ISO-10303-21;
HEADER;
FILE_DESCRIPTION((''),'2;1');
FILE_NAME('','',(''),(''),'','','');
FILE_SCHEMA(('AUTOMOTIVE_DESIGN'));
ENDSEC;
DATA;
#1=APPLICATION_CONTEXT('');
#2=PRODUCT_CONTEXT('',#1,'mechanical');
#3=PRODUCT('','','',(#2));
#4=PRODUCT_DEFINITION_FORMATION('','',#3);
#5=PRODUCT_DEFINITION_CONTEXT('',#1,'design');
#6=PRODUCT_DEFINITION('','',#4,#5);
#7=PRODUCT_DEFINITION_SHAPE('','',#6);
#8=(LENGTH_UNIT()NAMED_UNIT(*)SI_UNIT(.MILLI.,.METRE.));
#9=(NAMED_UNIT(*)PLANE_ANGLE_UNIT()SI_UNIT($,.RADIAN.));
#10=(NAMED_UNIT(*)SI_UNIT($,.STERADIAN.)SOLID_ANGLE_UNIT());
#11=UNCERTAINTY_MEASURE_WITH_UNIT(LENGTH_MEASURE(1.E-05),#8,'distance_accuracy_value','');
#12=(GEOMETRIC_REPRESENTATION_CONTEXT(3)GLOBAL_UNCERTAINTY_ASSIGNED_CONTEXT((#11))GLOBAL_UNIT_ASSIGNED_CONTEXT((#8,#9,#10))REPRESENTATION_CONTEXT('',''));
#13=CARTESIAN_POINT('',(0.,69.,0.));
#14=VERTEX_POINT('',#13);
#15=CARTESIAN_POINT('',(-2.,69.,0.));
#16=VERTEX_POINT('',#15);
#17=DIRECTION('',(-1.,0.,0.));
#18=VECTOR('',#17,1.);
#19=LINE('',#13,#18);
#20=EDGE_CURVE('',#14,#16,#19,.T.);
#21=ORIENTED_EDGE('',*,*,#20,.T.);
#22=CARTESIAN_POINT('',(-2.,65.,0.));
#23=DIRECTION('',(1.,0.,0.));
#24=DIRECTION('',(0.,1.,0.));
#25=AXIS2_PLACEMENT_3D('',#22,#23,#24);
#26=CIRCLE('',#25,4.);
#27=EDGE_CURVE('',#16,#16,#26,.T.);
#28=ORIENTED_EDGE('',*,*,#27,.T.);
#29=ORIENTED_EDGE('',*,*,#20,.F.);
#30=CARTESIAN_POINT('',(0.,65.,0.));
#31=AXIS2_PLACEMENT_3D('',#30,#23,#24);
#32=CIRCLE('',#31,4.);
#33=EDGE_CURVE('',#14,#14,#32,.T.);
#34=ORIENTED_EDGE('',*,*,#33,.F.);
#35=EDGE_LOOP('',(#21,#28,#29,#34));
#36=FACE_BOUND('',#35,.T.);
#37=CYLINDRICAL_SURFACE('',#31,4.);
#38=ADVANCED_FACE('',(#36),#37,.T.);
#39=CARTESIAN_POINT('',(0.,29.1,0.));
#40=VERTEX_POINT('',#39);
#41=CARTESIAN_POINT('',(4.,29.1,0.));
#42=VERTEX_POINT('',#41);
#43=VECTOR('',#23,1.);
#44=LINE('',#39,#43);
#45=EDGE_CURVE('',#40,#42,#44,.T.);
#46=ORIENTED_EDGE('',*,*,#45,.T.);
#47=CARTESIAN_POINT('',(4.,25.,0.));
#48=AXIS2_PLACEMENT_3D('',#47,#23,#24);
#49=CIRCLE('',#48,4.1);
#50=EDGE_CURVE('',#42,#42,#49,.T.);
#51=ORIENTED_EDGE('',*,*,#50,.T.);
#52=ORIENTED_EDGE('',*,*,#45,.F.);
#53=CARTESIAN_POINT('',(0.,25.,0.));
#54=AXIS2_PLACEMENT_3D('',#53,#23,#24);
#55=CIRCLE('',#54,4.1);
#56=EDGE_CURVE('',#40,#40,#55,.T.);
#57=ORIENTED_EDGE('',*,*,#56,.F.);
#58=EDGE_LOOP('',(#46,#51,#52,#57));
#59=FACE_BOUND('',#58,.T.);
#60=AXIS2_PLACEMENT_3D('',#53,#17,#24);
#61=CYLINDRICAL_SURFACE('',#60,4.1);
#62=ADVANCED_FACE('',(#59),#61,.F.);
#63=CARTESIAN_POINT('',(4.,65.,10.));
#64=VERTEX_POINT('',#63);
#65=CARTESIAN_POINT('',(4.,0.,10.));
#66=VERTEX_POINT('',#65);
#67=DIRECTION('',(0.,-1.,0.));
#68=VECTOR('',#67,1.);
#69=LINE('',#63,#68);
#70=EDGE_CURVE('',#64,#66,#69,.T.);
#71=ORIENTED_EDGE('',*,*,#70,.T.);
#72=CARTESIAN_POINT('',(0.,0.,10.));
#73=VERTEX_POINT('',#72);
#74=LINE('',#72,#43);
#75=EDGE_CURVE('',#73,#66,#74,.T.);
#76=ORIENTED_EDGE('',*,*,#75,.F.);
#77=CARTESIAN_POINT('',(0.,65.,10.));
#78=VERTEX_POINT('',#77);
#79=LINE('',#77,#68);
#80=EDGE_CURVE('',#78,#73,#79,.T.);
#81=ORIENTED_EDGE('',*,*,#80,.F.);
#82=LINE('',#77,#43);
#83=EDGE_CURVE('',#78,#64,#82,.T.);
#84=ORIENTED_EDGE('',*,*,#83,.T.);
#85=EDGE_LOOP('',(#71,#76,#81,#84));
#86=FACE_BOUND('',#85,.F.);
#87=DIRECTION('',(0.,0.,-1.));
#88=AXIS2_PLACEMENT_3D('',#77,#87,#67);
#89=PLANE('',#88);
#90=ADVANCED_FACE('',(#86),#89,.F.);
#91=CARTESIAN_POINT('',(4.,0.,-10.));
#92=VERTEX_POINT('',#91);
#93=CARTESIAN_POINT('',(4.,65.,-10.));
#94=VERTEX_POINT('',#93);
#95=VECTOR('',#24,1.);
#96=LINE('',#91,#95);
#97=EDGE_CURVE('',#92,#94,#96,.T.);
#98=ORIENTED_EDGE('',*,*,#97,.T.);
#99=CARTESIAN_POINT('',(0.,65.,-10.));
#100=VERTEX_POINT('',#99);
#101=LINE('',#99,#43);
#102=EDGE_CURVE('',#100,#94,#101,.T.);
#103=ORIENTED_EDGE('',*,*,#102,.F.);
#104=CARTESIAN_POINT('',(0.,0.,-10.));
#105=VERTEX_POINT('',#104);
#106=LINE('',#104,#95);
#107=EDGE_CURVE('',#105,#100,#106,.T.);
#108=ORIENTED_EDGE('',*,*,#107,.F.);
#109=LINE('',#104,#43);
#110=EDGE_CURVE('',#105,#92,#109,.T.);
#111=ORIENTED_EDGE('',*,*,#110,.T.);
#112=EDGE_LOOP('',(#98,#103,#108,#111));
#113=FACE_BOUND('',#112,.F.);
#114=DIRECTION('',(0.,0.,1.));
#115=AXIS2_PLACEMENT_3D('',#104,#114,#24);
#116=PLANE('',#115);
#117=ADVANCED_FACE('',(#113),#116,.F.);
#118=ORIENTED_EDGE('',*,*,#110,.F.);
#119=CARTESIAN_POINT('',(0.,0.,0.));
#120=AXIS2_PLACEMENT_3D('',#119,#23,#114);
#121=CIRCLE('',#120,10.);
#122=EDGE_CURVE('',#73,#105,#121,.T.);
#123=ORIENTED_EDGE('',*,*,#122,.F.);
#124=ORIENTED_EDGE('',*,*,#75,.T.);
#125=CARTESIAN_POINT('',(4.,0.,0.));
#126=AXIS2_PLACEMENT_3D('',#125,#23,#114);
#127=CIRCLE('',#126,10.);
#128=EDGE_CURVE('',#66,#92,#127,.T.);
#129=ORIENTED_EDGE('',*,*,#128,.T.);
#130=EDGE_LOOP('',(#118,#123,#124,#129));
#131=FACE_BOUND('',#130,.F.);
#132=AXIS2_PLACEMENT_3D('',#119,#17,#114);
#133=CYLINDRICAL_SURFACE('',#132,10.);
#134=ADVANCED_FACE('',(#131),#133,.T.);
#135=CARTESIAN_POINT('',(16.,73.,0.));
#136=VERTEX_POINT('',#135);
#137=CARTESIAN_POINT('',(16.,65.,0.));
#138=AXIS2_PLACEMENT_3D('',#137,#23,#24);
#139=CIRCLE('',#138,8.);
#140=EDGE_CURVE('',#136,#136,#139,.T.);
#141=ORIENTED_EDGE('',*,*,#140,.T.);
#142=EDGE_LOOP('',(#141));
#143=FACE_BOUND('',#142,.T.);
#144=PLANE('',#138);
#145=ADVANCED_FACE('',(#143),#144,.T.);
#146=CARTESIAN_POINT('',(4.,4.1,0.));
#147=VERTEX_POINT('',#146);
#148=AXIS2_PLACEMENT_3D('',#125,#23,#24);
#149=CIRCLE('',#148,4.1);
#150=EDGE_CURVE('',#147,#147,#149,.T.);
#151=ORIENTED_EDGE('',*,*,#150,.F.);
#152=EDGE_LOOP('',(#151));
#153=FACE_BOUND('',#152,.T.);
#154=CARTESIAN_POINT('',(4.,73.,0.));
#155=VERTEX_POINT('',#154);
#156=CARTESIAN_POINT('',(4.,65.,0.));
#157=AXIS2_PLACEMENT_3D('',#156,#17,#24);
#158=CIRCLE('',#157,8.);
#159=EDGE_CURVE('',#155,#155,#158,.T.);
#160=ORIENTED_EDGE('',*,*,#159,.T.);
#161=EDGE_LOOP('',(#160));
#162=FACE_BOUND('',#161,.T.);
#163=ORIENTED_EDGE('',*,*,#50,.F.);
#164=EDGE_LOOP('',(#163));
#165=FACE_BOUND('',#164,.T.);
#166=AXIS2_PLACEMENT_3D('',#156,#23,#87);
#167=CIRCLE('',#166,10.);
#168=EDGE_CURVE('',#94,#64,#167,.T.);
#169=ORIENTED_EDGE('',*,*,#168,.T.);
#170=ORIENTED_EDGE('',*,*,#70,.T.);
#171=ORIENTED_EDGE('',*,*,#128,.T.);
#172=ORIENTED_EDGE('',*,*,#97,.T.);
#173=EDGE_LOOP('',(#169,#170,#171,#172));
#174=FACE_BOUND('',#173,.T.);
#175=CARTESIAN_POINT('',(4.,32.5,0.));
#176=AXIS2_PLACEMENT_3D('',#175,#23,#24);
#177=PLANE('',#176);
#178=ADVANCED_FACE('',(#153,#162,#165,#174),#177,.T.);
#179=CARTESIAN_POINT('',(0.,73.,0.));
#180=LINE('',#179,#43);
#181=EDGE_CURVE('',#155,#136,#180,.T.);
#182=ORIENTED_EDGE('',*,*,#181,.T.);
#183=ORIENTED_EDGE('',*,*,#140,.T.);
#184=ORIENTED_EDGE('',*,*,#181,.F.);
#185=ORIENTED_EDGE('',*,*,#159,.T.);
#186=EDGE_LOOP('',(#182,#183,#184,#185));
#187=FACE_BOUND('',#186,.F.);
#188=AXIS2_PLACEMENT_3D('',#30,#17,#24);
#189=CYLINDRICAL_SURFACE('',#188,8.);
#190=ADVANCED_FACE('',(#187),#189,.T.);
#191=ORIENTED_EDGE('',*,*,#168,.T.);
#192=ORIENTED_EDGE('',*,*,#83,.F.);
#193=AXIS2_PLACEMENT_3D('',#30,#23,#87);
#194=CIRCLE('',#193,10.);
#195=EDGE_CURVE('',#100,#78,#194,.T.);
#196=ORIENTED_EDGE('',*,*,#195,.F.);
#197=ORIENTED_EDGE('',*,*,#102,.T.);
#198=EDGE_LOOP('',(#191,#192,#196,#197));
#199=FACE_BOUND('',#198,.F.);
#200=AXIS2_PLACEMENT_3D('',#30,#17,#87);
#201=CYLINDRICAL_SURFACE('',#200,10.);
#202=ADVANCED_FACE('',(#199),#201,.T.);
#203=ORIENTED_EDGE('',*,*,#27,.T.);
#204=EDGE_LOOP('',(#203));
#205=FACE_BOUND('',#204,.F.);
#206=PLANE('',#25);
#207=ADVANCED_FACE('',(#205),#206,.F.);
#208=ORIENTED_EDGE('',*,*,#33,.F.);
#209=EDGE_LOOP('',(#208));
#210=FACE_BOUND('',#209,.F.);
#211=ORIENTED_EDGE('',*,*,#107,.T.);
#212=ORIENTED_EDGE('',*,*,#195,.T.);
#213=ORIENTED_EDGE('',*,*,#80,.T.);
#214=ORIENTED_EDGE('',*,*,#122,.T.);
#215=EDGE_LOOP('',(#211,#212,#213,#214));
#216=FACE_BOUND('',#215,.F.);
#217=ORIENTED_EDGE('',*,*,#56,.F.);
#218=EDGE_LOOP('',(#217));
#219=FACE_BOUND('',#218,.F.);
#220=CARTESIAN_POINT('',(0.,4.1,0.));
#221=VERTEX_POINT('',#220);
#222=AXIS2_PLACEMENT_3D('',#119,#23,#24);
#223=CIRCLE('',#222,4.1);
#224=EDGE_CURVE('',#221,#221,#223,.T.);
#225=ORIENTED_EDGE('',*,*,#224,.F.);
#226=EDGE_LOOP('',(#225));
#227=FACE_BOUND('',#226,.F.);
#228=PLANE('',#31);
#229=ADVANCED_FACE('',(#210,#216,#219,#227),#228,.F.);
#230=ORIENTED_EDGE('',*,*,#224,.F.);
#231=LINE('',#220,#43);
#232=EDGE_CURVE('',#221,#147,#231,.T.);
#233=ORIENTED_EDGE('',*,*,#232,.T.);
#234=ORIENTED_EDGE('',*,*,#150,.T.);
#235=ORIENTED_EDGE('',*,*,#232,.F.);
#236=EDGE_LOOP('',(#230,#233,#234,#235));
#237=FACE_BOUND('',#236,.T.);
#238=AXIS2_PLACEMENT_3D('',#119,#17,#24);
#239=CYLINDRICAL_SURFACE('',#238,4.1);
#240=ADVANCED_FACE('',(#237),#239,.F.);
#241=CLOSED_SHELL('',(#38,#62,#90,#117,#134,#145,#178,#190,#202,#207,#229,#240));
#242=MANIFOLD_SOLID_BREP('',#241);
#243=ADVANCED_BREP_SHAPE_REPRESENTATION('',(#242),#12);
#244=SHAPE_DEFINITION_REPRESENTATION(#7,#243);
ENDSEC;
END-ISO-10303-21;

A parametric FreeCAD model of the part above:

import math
import FreeCAD as App
import Part
import Sketcher
from FreeCAD import Vector

doc = App.newDocument("Part")
body = doc.addObject("PartDesign::Body", "Body")

# Sketch on YZ plane
sketch1 = body.newObject("Sketcher::SketchObject", "Sketch")
sketch1.AttachmentSupport = (doc.getObject("YZ_Plane"), [""])
sketch1.MapMode = "FlatFace"
sketch1.addGeometry(Part.LineSegment(Vector(65, 10, 0), Vector(0, 10, 0)), False)
sketch1.addGeometry(Part.ArcOfCircle(Part.Circle(Vector(0, 0, 0), Vector(0, 0, 1), 10), math.radians(90), math.radians(270)), False)
sketch1.addGeometry(Part.LineSegment(Vector(0, -10, 0), Vector(65, -10, 0)), False)
sketch1.addGeometry(Part.ArcOfCircle(Part.Circle(Vector(65, 0, 0), Vector(0, 0, 1), 10), math.radians(-90), math.radians(90)), False)
sketch1.addGeometry(Part.Circle(Vector(0, 0, 0), Vector(0, 0, 1), 4.1), False)
sketch1.addGeometry(Part.Circle(Vector(25, 0, 0), Vector(0, 0, 1), 4.1), False)
sketch1.addConstraint(Sketcher.Constraint("Tangent", 0, 2, 1, 1))
sketch1.addConstraint(Sketcher.Constraint("Tangent", 1, 2, 2, 1))
sketch1.addConstraint(Sketcher.Constraint("Tangent", 2, 2, 3, 1))
sketch1.addConstraint(Sketcher.Constraint("Tangent", 3, 2, 0, 1))
sketch1.addConstraint(Sketcher.Constraint("Horizontal", 0))
sketch1.addConstraint(Sketcher.Constraint("Horizontal", 2))
sketch1.addConstraint(Sketcher.Constraint("Coincident", 1, 3, -1, 1))
sketch1.addConstraint(Sketcher.Constraint("Coincident", 4, 3, -1, 1))
sketch1.addConstraint(Sketcher.Constraint("Equal", 4, 5))
sketch1.addConstraint(Sketcher.Constraint("PointOnObject", 5, 3, -1))
sketch1.addConstraint(Sketcher.Constraint("Radius", 1, 10.0))
sketch1.addConstraint(Sketcher.Constraint("Diameter", 4, 8.2))
sketch1.addConstraint(Sketcher.Constraint("DistanceX", 0, 2, 0, 1, 65.0))
sketch1.addConstraint(Sketcher.Constraint("DistanceX", -1, 1, 5, 3, 25.0))
pad1 = body.newObject("PartDesign::Pad", "Pad")
pad1.Profile = sketch1
pad1.Length = 4

# Sketch on YZ plane
sketch2 = body.newObject("Sketcher::SketchObject", "Sketch001")
sketch2.AttachmentSupport = (doc.getObject("YZ_Plane"), [""])
sketch2.MapMode = "FlatFace"
sketch2.addGeometry(Part.Circle(Vector(65, 0, 0), Vector(0, 0, 1), 8), False)
sketch2.addConstraint(Sketcher.Constraint("PointOnObject", 0, 3, -1))
sketch2.addConstraint(Sketcher.Constraint("Diameter", 0, 16.0))
sketch2.addConstraint(Sketcher.Constraint("DistanceX", -1, 1, 0, 3, 65.0))
pad2 = body.newObject("PartDesign::Pad", "Pad001")
pad2.Profile = sketch2
pad2.Length = 16

# Sketch on YZ plane
sketch3 = body.newObject("Sketcher::SketchObject", "Sketch002")
sketch3.AttachmentSupport = (doc.getObject("YZ_Plane"), [""])
sketch3.MapMode = "FlatFace"
sketch3.addGeometry(Part.Circle(Vector(65, 0, 0), Vector(0, 0, 1), 4), False)
sketch3.addConstraint(Sketcher.Constraint("PointOnObject", 0, 3, -1))
sketch3.addConstraint(Sketcher.Constraint("Diameter", 0, 8.0))
sketch3.addConstraint(Sketcher.Constraint("DistanceX", -1, 1, 0, 3, 65.0))
pad3 = body.newObject("PartDesign::Pad", "Pad002")
pad3.Profile = sketch3
pad3.Length = 2
pad3.Reversed = True

doc.recompute()
